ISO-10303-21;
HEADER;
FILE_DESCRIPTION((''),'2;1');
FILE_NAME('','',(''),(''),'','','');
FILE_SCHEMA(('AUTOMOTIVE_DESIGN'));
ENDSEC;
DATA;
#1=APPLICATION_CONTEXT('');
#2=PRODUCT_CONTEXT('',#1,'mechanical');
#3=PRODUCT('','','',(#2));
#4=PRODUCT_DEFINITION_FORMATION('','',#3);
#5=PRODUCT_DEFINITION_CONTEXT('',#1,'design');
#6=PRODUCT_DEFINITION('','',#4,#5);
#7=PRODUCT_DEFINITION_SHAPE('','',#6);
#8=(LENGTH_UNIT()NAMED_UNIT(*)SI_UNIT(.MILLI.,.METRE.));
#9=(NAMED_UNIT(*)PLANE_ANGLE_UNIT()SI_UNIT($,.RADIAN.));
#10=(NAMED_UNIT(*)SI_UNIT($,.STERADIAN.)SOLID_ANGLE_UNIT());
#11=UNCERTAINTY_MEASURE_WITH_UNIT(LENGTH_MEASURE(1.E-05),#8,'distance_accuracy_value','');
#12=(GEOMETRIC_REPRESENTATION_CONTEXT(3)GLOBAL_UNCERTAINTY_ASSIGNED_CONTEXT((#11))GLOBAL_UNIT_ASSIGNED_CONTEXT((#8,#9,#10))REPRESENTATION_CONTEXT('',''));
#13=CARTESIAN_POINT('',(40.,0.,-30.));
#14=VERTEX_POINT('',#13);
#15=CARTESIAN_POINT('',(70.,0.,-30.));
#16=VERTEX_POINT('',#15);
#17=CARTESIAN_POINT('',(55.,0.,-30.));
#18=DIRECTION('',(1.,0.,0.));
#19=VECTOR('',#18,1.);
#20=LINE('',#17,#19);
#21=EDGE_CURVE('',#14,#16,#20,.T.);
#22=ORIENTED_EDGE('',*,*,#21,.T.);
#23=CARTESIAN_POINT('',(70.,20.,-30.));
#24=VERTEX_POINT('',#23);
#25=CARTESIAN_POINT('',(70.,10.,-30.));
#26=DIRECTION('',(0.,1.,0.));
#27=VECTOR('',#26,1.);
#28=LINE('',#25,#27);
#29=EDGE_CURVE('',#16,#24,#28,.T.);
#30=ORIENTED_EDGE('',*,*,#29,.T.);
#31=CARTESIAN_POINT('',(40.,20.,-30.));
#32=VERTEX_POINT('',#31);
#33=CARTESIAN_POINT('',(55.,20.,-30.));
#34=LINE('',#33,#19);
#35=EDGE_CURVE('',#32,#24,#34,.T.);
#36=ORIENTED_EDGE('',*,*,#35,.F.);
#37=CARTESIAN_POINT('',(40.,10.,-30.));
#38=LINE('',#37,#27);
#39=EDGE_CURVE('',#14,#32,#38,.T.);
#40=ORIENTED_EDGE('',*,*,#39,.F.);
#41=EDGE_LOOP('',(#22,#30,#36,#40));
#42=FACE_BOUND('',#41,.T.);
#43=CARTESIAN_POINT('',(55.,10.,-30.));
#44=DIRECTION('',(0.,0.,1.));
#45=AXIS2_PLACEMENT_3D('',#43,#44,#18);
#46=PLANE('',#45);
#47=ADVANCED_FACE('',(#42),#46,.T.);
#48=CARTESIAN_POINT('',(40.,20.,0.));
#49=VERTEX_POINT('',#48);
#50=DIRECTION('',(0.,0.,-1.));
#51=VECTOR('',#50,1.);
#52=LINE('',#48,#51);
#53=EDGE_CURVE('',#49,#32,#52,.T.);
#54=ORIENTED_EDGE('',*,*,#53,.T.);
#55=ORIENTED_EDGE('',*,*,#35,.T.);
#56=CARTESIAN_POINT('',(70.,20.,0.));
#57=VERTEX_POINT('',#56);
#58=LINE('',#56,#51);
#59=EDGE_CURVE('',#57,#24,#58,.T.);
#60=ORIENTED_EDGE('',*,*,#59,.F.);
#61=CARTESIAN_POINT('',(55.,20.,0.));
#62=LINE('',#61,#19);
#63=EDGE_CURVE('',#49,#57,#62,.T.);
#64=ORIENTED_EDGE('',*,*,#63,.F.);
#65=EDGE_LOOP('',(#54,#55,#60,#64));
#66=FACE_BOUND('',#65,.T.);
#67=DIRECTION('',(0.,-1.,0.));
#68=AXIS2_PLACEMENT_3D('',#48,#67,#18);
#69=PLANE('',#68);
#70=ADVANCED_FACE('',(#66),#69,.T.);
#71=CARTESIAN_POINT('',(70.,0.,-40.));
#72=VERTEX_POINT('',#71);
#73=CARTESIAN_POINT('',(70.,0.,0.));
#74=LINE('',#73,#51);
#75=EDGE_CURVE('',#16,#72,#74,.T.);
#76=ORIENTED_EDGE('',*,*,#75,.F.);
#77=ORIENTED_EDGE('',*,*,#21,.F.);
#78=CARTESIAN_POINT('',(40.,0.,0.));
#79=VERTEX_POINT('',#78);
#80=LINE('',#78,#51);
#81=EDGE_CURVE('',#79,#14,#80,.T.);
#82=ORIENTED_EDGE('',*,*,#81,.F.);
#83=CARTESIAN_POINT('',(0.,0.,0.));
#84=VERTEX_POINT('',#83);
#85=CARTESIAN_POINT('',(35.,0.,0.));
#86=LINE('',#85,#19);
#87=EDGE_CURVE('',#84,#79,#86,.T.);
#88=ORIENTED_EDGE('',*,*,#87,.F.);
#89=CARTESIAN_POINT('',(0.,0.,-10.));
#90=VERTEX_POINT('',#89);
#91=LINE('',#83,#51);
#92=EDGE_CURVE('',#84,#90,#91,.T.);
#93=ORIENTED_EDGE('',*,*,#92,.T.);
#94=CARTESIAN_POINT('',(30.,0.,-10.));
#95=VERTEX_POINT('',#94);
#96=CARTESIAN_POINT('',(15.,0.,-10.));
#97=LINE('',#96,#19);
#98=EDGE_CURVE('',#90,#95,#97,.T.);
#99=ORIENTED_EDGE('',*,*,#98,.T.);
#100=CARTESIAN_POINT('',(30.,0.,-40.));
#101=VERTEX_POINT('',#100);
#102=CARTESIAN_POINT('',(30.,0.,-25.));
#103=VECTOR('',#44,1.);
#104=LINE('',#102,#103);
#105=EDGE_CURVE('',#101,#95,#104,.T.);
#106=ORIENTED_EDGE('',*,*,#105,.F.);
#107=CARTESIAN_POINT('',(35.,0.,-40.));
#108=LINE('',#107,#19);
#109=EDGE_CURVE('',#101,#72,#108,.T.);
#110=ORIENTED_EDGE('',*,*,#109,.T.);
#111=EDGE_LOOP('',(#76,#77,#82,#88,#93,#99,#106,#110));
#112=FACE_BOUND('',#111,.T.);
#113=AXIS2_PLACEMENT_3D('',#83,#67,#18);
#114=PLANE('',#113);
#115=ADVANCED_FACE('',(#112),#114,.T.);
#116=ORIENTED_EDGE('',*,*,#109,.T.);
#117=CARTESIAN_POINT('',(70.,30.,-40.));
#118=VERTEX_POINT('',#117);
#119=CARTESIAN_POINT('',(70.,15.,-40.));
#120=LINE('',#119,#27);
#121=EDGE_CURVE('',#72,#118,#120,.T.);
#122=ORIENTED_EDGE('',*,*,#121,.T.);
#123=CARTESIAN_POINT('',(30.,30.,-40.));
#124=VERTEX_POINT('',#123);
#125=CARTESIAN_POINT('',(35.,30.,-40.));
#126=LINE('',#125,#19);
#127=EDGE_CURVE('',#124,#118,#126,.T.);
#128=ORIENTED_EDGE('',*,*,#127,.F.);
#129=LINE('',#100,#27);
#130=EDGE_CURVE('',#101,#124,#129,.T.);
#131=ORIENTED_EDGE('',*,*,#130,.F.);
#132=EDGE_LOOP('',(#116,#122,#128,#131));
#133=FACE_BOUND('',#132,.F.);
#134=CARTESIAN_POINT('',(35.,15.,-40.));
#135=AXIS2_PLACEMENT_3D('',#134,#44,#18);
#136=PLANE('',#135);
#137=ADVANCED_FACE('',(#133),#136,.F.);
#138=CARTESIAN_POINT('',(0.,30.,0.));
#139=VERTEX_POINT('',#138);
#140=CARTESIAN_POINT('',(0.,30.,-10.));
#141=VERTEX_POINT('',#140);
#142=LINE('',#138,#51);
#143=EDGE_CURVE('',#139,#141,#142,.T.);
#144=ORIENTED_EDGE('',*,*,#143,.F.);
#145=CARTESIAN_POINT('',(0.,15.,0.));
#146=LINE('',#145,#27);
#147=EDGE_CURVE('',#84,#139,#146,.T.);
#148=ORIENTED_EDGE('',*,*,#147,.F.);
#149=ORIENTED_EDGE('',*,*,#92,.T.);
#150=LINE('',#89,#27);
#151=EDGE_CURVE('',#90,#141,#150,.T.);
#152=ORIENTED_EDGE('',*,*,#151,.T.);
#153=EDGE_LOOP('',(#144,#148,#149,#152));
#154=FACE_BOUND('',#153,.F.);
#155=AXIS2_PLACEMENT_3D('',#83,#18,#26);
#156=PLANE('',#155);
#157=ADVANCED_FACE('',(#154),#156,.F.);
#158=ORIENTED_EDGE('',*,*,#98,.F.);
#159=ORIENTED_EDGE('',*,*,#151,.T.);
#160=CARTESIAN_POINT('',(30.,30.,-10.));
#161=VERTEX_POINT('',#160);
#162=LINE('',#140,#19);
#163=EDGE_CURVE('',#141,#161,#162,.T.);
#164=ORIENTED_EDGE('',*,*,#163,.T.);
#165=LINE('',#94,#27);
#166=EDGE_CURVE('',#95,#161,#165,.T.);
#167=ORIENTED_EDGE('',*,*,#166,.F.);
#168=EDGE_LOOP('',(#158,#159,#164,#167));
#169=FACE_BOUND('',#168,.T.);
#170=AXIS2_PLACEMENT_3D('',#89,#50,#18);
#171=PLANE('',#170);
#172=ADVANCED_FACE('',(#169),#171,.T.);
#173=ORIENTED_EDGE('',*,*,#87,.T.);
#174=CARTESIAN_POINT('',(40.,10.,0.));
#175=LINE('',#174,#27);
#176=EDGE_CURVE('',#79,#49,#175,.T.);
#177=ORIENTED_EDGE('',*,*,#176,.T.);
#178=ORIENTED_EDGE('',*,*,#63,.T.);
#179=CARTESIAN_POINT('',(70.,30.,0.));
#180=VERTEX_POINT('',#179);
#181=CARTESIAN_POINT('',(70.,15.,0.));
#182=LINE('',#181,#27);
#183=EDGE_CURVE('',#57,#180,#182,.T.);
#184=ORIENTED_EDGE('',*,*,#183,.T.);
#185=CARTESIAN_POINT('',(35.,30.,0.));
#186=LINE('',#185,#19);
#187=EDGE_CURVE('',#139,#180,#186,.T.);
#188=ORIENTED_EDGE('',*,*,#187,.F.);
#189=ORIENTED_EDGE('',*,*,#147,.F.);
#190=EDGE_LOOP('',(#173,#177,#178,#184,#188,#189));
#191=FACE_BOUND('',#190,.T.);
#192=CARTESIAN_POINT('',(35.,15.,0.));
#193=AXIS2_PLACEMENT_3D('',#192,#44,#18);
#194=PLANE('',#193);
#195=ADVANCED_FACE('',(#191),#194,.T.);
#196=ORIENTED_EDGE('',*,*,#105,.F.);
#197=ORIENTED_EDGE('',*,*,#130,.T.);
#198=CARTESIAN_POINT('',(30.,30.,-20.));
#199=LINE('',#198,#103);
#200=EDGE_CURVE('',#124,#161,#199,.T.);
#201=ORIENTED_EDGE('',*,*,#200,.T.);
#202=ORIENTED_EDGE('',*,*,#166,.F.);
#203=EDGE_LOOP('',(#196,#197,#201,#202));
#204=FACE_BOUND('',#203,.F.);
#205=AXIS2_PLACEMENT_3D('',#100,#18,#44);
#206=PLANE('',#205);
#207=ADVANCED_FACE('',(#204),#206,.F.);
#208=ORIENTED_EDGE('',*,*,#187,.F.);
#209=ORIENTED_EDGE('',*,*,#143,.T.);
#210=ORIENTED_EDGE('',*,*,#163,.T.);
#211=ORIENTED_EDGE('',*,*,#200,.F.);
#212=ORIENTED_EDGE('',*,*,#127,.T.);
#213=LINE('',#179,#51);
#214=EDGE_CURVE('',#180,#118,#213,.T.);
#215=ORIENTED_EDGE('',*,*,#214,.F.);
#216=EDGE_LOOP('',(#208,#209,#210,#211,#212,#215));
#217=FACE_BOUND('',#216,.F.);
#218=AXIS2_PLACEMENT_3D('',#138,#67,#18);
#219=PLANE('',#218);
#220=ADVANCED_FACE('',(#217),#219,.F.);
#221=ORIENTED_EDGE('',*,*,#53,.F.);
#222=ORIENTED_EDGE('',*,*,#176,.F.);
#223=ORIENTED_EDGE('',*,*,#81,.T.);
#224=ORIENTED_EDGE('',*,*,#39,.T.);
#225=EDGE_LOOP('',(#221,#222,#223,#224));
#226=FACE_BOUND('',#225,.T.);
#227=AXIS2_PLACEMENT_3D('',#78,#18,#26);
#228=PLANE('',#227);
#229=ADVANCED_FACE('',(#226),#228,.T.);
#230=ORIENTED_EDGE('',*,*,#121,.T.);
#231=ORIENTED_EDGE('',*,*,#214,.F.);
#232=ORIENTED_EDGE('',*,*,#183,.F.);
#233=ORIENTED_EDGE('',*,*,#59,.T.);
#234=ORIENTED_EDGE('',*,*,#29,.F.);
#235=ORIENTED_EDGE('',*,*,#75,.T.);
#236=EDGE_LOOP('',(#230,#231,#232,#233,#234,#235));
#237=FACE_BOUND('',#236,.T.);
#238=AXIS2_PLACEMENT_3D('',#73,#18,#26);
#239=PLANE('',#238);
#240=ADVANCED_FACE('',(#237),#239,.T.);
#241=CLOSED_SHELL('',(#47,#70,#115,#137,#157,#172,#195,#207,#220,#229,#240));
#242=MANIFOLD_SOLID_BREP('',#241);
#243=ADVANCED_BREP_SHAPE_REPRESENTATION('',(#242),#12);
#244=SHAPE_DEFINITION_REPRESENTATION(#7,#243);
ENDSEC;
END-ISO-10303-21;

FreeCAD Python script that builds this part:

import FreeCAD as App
import Part
import Sketcher
Q = App.Units.Quantity


def add_polygon(sketch, points):
    """Adds a closed chain of lines whose ends are joined by coincident constraints."""
    first, n = sketch.GeometryCount, len(points)
    for a, b in zip(points, points[1:] + points[:1]):
        sketch.addGeometry(Part.LineSegment(App.Vector(*a, 0), App.Vector(*b, 0)), False)
    for i in range(n):
        sketch.addConstraint(Sketcher.Constraint("Coincident", first + i, 2, first + (i + 1) % n, 1))

doc = App.newDocument("Part")
params = doc.addObject("Spreadsheet::Sheet", "Params")
for row, (alias, value) in enumerate([
    ("sketch1_width", "70 mm"),
    ("sketch1_height", "30 mm"),
    ("pad1_length", "40 mm"),
    ("sketch2_width", "30 mm"),
    ("sketch2_height", "20 mm"),
    ("pocket1_length", "30 mm"),
    ("sketch3_width", "30 mm"),
], start=1):
    params.set(f"A{row}", alias)
    params.set(f"B{row}", "=" + value)
    params.setAlias(f"B{row}", alias)

body = doc.addObject("PartDesign::Body", "Body")

# Sketch on XY plane
sketch1 = body.newObject("Sketcher::SketchObject", "Sketch")
sketch1.AttachmentSupport = (doc.getObject("XY_Plane"), [""])
sketch1.MapMode = "FlatFace"
add_polygon(sketch1, [(0, 30), (0, 0), (70, 0), (70, 30)])  # lines 0-3
sketch1.addConstraint([
    Sketcher.Constraint("Vertical", 0),
    Sketcher.Constraint("Horizontal", 1),
    Sketcher.Constraint("Vertical", 2),
    Sketcher.Constraint("Horizontal", 3),
    Sketcher.Constraint("Coincident", 0, 2, -1, 1),
    Sketcher.Constraint("DistanceX", 1, 1, 1, 2, Q("70 mm")),
    Sketcher.Constraint("DistanceY", 0, 2, 0, 1, Q("30 mm")),
])
sketch1.setExpression("Constraints[9]", "Params.sketch1_width")
sketch1.setExpression("Constraints[10]", "Params.sketch1_height")
pad1 = body.newObject("PartDesign::Pad", "Pad")
pad1.Profile = sketch1
pad1.setExpression("Length", "Params.pad1_length")
pad1.Reversed = True

# Sketch on XY plane
sketch2 = body.newObject("Sketcher::SketchObject", "Sketch001")
sketch2.AttachmentSupport = (doc.getObject("XY_Plane"), [""])
sketch2.MapMode = "FlatFace"
add_polygon(sketch2, [(40, 20), (40, 0), (70, 0), (70, 20)])  # lines 0-3
sketch2.addConstraint([
    Sketcher.Constraint("Vertical", 0),
    Sketcher.Constraint("Horizontal", 1),
    Sketcher.Constraint("Vertical", 2),
    Sketcher.Constraint("Horizontal", 3),
    Sketcher.Constraint("PointOnObject", 0, 2, -1),
    Sketcher.Constraint("DistanceX", 1, 1, 1, 2, Q("30 mm")),
    Sketcher.Constraint("DistanceY", 0, 2, 0, 1, Q("20 mm")),
    Sketcher.Constraint("DistanceX", -1, 1, 0, 2, Q("40 mm")),
])
sketch2.setExpression("Constraints[9]", "Params.sketch2_width")
sketch2.setExpression("Constraints[10]", "Params.sketch2_height")
pocket1 = body.newObject("PartDesign::Pocket", "Pocket")
pocket1.Profile = sketch2
pocket1.setExpression("Length", "Params.pocket1_length")

# Sketch on XZ plane
sketch3 = body.newObject("Sketcher::SketchObject", "Sketch002")
sketch3.AttachmentSupport = (doc.getObject("XZ_Plane"), [""])
sketch3.MapMode = "FlatFace"
add_polygon(sketch3, [(0, -10), (0, -40), (30, -40), (30, -10)])  # lines 0-3
sketch3.addConstraint([
    Sketcher.Constraint("Vertical", 0),
    Sketcher.Constraint("Horizontal", 1),
    Sketcher.Constraint("Vertical", 2),
    Sketcher.Constraint("Horizontal", 3),
    Sketcher.Constraint("PointOnObject", 0, 2, -2),
    Sketcher.Constraint("Equal", 3, 0),
    Sketcher.Constraint("DistanceX", 1, 1, 1, 2, Q("30 mm")),
    Sketcher.Constraint("DistanceY", 0, 2, -1, 1, Q("40 mm")),
])
sketch3.setExpression("Constraints[10]", "Params.sketch3_width")
pocket2 = body.newObject("PartDesign::Pocket", "Pocket001")
pocket2.Profile = sketch3
pocket2.Type = "ThroughAll"

doc.recompute()
